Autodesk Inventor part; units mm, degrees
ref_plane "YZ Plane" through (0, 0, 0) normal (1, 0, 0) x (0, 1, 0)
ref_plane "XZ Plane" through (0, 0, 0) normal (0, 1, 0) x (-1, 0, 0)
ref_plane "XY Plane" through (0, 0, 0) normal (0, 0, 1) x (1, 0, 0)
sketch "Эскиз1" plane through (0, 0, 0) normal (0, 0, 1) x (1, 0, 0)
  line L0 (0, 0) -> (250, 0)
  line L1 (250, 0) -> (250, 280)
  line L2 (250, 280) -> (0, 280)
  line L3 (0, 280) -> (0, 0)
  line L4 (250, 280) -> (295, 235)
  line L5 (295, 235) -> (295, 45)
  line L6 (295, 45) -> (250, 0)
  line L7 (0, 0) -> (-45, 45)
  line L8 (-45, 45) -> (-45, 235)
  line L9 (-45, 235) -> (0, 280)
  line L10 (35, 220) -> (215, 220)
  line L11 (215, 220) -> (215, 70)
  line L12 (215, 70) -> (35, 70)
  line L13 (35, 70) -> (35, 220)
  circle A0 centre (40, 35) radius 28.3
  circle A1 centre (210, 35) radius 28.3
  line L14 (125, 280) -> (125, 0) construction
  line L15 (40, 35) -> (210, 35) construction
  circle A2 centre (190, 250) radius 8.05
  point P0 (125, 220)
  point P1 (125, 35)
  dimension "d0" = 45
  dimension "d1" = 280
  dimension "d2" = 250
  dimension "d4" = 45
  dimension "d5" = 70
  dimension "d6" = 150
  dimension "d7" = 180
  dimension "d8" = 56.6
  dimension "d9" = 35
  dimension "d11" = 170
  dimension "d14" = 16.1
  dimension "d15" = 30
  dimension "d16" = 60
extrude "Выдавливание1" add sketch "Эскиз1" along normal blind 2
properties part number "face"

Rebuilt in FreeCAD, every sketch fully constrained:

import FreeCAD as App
import Part
import Sketcher

V = App.Vector
Q = App.Units.Quantity

doc = App.newDocument("Part")
body = doc.addObject("PartDesign::Body", "Body")

# Sketch on XY plane
sketch1 = doc.addObject("Sketcher::SketchObject", "Sketch")
body.addObject(sketch1)
sketch1.AttachmentSupport = (doc.XY_Plane, [""])
sketch1.MapMode = "FlatFace"
sketch1.addGeometry(Part.LineSegment(V(250, 280, 0), V(0, 280, 0)), False)
sketch1.addGeometry(Part.LineSegment(V(0, 280, 0), V(-45, 235, 0)), False)
sketch1.addGeometry(Part.LineSegment(V(-45, 235, 0), V(-45, 45, 0)), False)
sketch1.addGeometry(Part.LineSegment(V(-45, 45, 0), V(0, 0, 0)), False)
sketch1.addGeometry(Part.LineSegment(V(0, 0, 0), V(250, 0, 0)), False)
sketch1.addGeometry(Part.LineSegment(V(250, 0, 0), V(295, 45, 0)), False)
sketch1.addGeometry(Part.LineSegment(V(295, 45, 0), V(295, 235, 0)), False)
sketch1.addGeometry(Part.LineSegment(V(295, 235, 0), V(250, 280, 0)), False)
sketch1.addGeometry(Part.Circle(V(40, 35, 0), V(0, 0, 1), 28), False)
sketch1.addGeometry(Part.Circle(V(210, 35, 0), V(0, 0, 1), 28), False)
sketch1.addGeometry(Part.LineSegment(V(35, 70, 0), V(35, 220, 0)), False)
sketch1.addGeometry(Part.LineSegment(V(35, 220, 0), V(215, 220, 0)), False)
sketch1.addGeometry(Part.LineSegment(V(215, 220, 0), V(215, 70, 0)), False)
sketch1.addGeometry(Part.LineSegment(V(215, 70, 0), V(35, 70, 0)), False)
sketch1.addGeometry(Part.Circle(V(190, 250, 0), V(0, 0, 1), 8), False)
sketch1.addConstraint(Sketcher.Constraint("Coincident", 0, 2, 1, 1))
sketch1.addConstraint(Sketcher.Constraint("Coincident", 1, 2, 2, 1))
sketch1.addConstraint(Sketcher.Constraint("Coincident", 2, 2, 3, 1))
sketch1.addConstraint(Sketcher.Constraint("Coincident", 3, 2, 4, 1))
sketch1.addConstraint(Sketcher.Constraint("Coincident", 4, 2, 5, 1))
sketch1.addConstraint(Sketcher.Constraint("Coincident", 5, 2, 6, 1))
sketch1.addConstraint(Sketcher.Constraint("Coincident", 6, 2, 7, 1))
sketch1.addConstraint(Sketcher.Constraint("Coincident", 7, 2, 0, 1))
sketch1.addConstraint(Sketcher.Constraint("Coincident", 10, 2, 11, 1))
sketch1.addConstraint(Sketcher.Constraint("Coincident", 11, 2, 12, 1))
sketch1.addConstraint(Sketcher.Constraint("Coincident", 12, 2, 13, 1))
sketch1.addConstraint(Sketcher.Constraint("Coincident", 13, 2, 10, 1))
sketch1.addConstraint(Sketcher.Constraint("Horizontal", 0))
sketch1.addConstraint(Sketcher.Constraint("Vertical", 2))
sketch1.addConstraint(Sketcher.Constraint("Horizontal", 4))
sketch1.addConstraint(Sketcher.Constraint("Vertical", 6))
sketch1.addConstraint(Sketcher.Constraint("Vertical", 10))
sketch1.addConstraint(Sketcher.Constraint("Horizontal", 11))
sketch1.addConstraint(Sketcher.Constraint("Vertical", 12))
sketch1.addConstraint(Sketcher.Constraint("Horizontal", 13))
sketch1.addConstraint(Sketcher.Constraint("Coincident", 3, 2, -1, 1))
sketch1.addConstraint(Sketcher.Constraint("Equal", 8, 9))
sketch1.addConstraint(Sketcher.Constraint("PointOnObject", 0, 2, -2))
sketch1.addConstraint(Sketcher.Constraint("Perpendicular", 1, 3))
sketch1.addConstraint(Sketcher.Constraint("Perpendicular", 3, 5))
sketch1.addConstraint(Sketcher.Constraint("Perpendicular", 5, 7))
sketch1.addConstraint(Sketcher.Constraint("Horizontal", 8, 3, 9, 3))
sketch1.addConstraint(Sketcher.Constraint("Horizontal", 2, 2, 5, 2))
sketch1.addConstraint(Sketcher.Constraint("Horizontal", 1, 2, 6, 2))
sketch1.addConstraint(Sketcher.Constraint("Vertical", 4, 2, 7, 2))
sketch1.addConstraint(Sketcher.Constraint("Diameter", 8, Q("56.6 mm")))
sketch1.addConstraint(Sketcher.Constraint("Diameter", 14, Q("16.1 mm")))
sketch1.addConstraint(Sketcher.Constraint("DistanceX", 0, 2, 0, 1, Q("250 mm")))
sketch1.addConstraint(Sketcher.Constraint("DistanceX", 11, 1, 11, 2, Q("180 mm")))
sketch1.addConstraint(Sketcher.Constraint("DistanceY", 10, 1, 10, 2, Q("150 mm")))
sketch1.addConstraint(Sketcher.Constraint("DistanceY", -1, 1, 8, 3, Q("35 mm")))
sketch1.addConstraint(Sketcher.Constraint("DistanceY", -1, 1, 14, 3, Q("250 mm")))
sketch1.addConstraint(Sketcher.Constraint("DistanceY", -1, 1, 0, 2, Q("280 mm")))
sketch1.addConstraint(Sketcher.Constraint("DistanceX", 1, 2, -1, 1, Q("45 mm")))
sketch1.addConstraint(Sketcher.Constraint("DistanceX", -1, 1, 10, 2, Q("35 mm")))
sketch1.addConstraint(Sketcher.Constraint("DistanceY", -1, 1, 12, 2, Q("70 mm")))
sketch1.addConstraint(Sketcher.Constraint("DistanceX", 8, 3, 9, 3, Q("170 mm")))
sketch1.addConstraint(Sketcher.Constraint("DistanceX", 8, 3, 14, 3, Q("150 mm")))
sketch1.addConstraint(Sketcher.Constraint("DistanceX", 14, 3, 4, 2, Q("60 mm")))
pad1 = doc.addObject("PartDesign::Pad", "Pad")
body.addObject(pad1)
pad1.Profile = sketch1
pad1.Length = 2

doc.recompute()
